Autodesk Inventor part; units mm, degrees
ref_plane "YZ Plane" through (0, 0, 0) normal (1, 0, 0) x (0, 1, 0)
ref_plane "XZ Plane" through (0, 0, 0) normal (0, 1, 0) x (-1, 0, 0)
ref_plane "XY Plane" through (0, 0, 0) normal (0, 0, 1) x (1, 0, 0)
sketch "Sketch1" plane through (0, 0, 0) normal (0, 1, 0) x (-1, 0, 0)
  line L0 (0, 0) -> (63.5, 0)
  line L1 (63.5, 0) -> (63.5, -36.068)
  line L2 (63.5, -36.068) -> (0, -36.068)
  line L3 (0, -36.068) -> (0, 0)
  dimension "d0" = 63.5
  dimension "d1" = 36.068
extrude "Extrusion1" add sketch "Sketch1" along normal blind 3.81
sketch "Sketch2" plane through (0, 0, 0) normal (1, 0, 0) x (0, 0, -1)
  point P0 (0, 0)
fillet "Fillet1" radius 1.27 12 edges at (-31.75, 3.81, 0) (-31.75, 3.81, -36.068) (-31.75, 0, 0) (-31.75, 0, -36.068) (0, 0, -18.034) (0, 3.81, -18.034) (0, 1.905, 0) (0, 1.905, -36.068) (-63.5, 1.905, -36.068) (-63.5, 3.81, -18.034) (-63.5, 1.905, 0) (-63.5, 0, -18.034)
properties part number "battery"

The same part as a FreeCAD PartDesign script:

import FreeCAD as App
import Part
import Sketcher

V = App.Vector
Q = App.Units.Quantity

doc = App.newDocument("Part")
body = doc.addObject("PartDesign::Body", "Body")

# Sketch on XZ plane
sketch1 = doc.addObject("Sketcher::SketchObject", "Sketch")
body.addObject(sketch1)
sketch1.AttachmentSupport = (doc.XZ_Plane, [""])
sketch1.MapMode = "FlatFace"
sketch1.addGeometry(Part.LineSegment(V(-64, 0, 0), V(0, 0, 0)), False)
sketch1.addGeometry(Part.LineSegment(V(0, 0, 0), V(0, -36, 0)), False)
sketch1.addGeometry(Part.LineSegment(V(0, -36, 0), V(-64, -36, 0)), False)
sketch1.addGeometry(Part.LineSegment(V(-64, -36, 0), V(-64, 0, 0)), False)
sketch1.addConstraint(Sketcher.Constraint("Coincident", 0, 2, 1, 1))
sketch1.addConstraint(Sketcher.Constraint("Coincident", 1, 2, 2, 1))
sketch1.addConstraint(Sketcher.Constraint("Coincident", 2, 2, 3, 1))
sketch1.addConstraint(Sketcher.Constraint("Coincident", 3, 2, 0, 1))
sketch1.addConstraint(Sketcher.Constraint("Horizontal", 0))
sketch1.addConstraint(Sketcher.Constraint("Vertical", 1))
sketch1.addConstraint(Sketcher.Constraint("Horizontal", 2))
sketch1.addConstraint(Sketcher.Constraint("Vertical", 3))
sketch1.addConstraint(Sketcher.Constraint("Coincident", 0, 2, -1, 1))
sketch1.addConstraint(Sketcher.Constraint("DistanceX", 0, 1, 0, 2, Q("2.5 in")))
sketch1.addConstraint(Sketcher.Constraint("DistanceY", 1, 2, 1, 1, Q("1.42 in")))
pad1 = doc.addObject("PartDesign::Pad", "Pad")
body.addObject(pad1)
pad1.Profile = sketch1
pad1.Length = Q("0.15 in")
pad1.Reversed = True
doc.recompute()

fillet = doc.addObject("PartDesign::Fillet", "Fillet")
body.addObject(fillet)
fillet.Base = (pad1, ["Edge1"])
fillet.UseAllEdges = True
fillet.Radius = Q("0.05 in")

doc.recompute()
